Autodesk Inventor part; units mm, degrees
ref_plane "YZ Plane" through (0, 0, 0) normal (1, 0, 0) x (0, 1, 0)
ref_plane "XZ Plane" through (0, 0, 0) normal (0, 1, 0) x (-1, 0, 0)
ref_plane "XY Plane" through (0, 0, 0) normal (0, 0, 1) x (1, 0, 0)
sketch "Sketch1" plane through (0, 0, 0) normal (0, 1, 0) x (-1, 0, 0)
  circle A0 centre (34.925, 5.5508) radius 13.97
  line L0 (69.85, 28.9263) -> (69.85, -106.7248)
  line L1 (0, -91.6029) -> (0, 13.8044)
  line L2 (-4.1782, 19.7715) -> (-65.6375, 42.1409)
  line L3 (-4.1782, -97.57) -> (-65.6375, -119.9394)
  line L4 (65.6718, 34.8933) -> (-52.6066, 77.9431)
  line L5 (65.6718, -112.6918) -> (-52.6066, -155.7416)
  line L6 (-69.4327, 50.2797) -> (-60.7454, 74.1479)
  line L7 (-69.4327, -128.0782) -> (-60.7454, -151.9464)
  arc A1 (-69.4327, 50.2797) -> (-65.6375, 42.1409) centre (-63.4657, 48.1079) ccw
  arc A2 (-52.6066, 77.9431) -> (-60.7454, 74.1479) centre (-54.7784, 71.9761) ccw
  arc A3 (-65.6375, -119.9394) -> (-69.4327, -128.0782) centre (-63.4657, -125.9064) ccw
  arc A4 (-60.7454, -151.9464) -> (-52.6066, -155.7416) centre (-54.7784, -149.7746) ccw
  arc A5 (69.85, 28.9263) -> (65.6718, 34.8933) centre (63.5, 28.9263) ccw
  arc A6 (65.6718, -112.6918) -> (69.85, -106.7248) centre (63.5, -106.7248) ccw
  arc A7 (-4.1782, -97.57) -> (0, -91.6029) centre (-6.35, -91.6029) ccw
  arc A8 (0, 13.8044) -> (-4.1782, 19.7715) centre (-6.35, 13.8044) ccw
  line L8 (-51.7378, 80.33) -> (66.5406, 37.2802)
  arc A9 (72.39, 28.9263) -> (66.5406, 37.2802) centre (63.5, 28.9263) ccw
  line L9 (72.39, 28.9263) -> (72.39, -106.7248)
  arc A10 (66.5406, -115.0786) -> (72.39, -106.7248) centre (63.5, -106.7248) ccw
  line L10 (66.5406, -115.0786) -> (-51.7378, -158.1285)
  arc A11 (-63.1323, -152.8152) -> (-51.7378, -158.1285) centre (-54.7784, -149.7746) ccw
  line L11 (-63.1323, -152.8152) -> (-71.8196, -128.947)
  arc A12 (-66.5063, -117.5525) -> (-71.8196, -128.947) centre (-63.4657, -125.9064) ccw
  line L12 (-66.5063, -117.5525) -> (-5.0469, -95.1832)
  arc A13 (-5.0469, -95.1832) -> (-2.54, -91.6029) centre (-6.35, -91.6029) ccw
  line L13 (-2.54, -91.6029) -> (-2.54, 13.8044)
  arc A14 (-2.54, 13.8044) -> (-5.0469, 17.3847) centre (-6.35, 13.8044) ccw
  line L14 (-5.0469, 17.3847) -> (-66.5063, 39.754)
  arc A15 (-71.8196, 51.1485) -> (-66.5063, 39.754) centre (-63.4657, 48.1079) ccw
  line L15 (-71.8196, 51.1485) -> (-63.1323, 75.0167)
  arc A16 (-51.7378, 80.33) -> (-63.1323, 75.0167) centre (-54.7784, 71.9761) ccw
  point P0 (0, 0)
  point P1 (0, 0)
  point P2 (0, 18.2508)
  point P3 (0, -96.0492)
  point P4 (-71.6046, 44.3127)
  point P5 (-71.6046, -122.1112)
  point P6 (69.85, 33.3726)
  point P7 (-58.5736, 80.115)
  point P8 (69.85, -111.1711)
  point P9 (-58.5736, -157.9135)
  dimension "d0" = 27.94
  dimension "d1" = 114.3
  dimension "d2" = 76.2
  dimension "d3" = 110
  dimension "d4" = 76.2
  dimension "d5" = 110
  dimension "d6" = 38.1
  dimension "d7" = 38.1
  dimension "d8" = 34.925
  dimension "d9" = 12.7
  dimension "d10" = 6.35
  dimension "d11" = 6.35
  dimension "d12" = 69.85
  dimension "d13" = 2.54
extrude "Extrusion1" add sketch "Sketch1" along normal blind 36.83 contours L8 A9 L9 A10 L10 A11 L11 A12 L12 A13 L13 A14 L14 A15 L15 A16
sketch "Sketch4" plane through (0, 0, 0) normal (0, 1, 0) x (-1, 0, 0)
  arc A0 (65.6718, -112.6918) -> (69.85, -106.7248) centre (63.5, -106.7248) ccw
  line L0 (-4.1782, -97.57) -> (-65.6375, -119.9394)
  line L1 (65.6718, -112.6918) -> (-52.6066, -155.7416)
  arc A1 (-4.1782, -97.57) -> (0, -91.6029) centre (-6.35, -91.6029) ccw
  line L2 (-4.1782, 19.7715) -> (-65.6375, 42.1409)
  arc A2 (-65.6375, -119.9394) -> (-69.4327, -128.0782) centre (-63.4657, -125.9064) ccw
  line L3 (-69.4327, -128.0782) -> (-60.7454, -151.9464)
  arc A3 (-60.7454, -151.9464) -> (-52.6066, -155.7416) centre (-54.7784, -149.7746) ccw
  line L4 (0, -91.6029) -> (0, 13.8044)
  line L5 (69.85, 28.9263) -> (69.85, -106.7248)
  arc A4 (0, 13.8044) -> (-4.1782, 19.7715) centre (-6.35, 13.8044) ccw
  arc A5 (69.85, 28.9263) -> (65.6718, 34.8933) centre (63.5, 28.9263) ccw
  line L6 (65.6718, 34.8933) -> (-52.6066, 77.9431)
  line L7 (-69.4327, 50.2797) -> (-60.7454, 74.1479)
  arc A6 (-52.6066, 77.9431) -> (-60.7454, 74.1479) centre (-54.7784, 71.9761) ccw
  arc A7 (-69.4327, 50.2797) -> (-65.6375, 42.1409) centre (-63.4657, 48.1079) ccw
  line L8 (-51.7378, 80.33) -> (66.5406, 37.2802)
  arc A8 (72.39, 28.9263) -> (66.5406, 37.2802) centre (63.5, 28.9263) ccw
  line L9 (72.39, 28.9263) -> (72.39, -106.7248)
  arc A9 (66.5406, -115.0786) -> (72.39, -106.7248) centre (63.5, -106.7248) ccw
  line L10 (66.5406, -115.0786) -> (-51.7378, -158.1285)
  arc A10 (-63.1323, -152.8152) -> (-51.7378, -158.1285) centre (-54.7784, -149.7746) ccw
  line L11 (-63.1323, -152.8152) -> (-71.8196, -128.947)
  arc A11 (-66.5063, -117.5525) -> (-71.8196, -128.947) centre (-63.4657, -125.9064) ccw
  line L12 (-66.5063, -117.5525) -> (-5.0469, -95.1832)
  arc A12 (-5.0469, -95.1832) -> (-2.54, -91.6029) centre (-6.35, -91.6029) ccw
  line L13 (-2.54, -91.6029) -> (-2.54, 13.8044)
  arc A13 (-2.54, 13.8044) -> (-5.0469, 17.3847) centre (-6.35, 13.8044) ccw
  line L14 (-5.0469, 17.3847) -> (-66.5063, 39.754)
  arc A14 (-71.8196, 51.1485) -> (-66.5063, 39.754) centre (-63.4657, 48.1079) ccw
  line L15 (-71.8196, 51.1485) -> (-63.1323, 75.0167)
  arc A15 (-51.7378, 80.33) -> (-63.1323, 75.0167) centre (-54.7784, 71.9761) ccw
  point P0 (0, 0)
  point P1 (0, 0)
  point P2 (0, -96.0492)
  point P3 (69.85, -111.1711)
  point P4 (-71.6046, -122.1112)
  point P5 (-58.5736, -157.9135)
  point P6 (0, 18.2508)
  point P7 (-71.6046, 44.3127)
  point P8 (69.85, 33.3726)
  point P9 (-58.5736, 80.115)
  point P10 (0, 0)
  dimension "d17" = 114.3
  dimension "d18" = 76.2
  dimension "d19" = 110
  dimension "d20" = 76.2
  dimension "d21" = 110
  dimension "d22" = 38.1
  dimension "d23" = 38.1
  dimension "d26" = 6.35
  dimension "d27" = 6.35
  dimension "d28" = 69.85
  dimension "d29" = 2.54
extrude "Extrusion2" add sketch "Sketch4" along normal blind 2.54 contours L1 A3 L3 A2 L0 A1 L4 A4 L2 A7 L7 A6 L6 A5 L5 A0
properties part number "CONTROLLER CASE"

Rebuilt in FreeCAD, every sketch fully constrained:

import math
import FreeCAD as App
import Part
import Sketcher
Q = App.Units.Quantity

doc = App.newDocument("Part")
body = doc.addObject("PartDesign::Body", "Body")

# Sketch on XZ plane
sketch1 = body.newObject("Sketcher::SketchObject", "Sketch")
sketch1.AttachmentSupport = (doc.getObject("XZ_Plane"), [""])
sketch1.MapMode = "FlatFace"
sketch1.addGeometry([
    Part.LineSegment(App.Vector(-66.5406, 37.2802, 0), App.Vector(51.7378, 80.33, 0)),  # 0
    Part.ArcOfCircle(Part.Circle(App.Vector(54.7784, 71.9761, 0), App.Vector(0, 0, 1), 8.890045), math.radians(20.000176), math.radians(110.000176)),  # 1
    Part.LineSegment(App.Vector(63.1323, 75.0167, 0), App.Vector(71.8196, 51.1485, 0)),  # 2
    Part.ArcOfCircle(Part.Circle(App.Vector(63.4657, 48.1079, 0), App.Vector(0, 0, 1), 8.890045), math.radians(-69.999824), math.radians(20.000176)),  # 3
    Part.LineSegment(App.Vector(66.5063, 39.754, 0), App.Vector(5.0469, 17.3847, 0)),  # 4
    Part.ArcOfCircle(Part.Circle(App.Vector(6.35, 13.8044, 0), App.Vector(0, 0, 1), 3.81), math.radians(109.99968), math.radians(180)),  # 5
    Part.LineSegment(App.Vector(2.54, 13.8044, 0), App.Vector(2.54, -91.6029, 0)),  # 6
    Part.ArcOfCircle(Part.Circle(App.Vector(6.35, -91.6029, 0), App.Vector(0, 0, 1), 3.810068), math.radians(180), math.radians(250.00032)),  # 7
    Part.LineSegment(App.Vector(5.0469, -95.1832, 0), App.Vector(66.5063, -117.5525, 0)),  # 8
    Part.ArcOfCircle(Part.Circle(App.Vector(63.4657, -125.9064, 0), App.Vector(0, 0, 1), 8.890045), math.radians(-20.000176), math.radians(69.999824)),  # 9
    Part.LineSegment(App.Vector(71.8196, -128.947, 0), App.Vector(63.1323, -152.8152, 0)),  # 10
    Part.ArcOfCircle(Part.Circle(App.Vector(54.7784, -149.7746, 0), App.Vector(0, 0, 1), 8.890045), math.radians(-110.000176), math.radians(-20.000176)),  # 11
    Part.LineSegment(App.Vector(51.7378, -158.1285, 0), App.Vector(-66.5406, -115.0786, 0)),  # 12
    Part.ArcOfCircle(Part.Circle(App.Vector(-63.5, -106.7248, 0), App.Vector(0, 0, 1), 8.889951), math.radians(180), math.radians(249.999604)),  # 13
    Part.LineSegment(App.Vector(-72.39, -106.7248, 0), App.Vector(-72.39, 28.9263, 0)),  # 14
    Part.ArcOfCircle(Part.Circle(App.Vector(-63.5, 28.9263, 0), App.Vector(0, 0, 1), 8.89), math.radians(110.000176), math.radians(180)),  # 15
    Part.ArcOfCircle(Part.Circle(App.Vector(-63.5, 28.9263, 0), App.Vector(0, 0, 1), 6.35), math.radians(109.999912), math.radians(180)),  # 16
    Part.LineSegment(App.Vector(-69.85, 28.9263, 0), App.Vector(-69.85, -106.7248, 0)),  # 17
    Part.ArcOfCircle(Part.Circle(App.Vector(-63.5, -106.7248, 0), App.Vector(0, 0, 1), 6.349945), math.radians(180), math.radians(250.000088)),  # 18
    Part.LineSegment(App.Vector(-65.6718, -112.6918, 0), App.Vector(52.6066, -155.7416, 0)),  # 19
    Part.ArcOfCircle(Part.Circle(App.Vector(54.7784, -149.7746, 0), App.Vector(0, 0, 1), 6.349945), math.radians(-109.999912), math.radians(-19.999912)),  # 20
    Part.LineSegment(App.Vector(60.7454, -151.9464, 0), App.Vector(69.4327, -128.0782, 0)),  # 21
    Part.ArcOfCircle(Part.Circle(App.Vector(63.4657, -125.9064, 0), App.Vector(0, 0, 1), 6.349945), math.radians(-19.999912), math.radians(70.000088)),  # 22
    Part.LineSegment(App.Vector(65.6375, -119.9394, 0), App.Vector(4.1782, -97.57, 0)),  # 23
    Part.ArcOfCircle(Part.Circle(App.Vector(6.35, -91.6029, 0), App.Vector(0, 0, 1), 6.350039), math.radians(180), math.radians(250.000397)),  # 24
    Part.LineSegment(App.Vector(0, -91.6029, 0), App.Vector(0, 13.8044, 0)),  # 25
    Part.ArcOfCircle(Part.Circle(App.Vector(6.35, 13.8044, 0), App.Vector(0, 0, 1), 6.35), math.radians(109.999603), math.radians(180)),  # 26
    Part.LineSegment(App.Vector(4.1782, 19.7715, 0), App.Vector(65.6375, 42.1409, 0)),  # 27
    Part.ArcOfCircle(Part.Circle(App.Vector(63.4657, 48.1079, 0), App.Vector(0, 0, 1), 6.349945), math.radians(-70.000088), math.radians(19.999912)),  # 28
    Part.LineSegment(App.Vector(69.4327, 50.2797, 0), App.Vector(60.7454, 74.1479, 0)),  # 29
    Part.ArcOfCircle(Part.Circle(App.Vector(54.7784, 71.9761, 0), App.Vector(0, 0, 1), 6.349945), math.radians(19.999912), math.radians(109.999912)),  # 30
    Part.LineSegment(App.Vector(52.6066, 77.9431, 0), App.Vector(-65.6718, 34.8933, 0)),  # 31
], False)
sketch1.addConstraint([
    Sketcher.Constraint("Tangent", 0, 2, 1, 2),
    Sketcher.Constraint("Tangent", 1, 1, 2, 1),
    Sketcher.Constraint("Tangent", 2, 2, 3, 2),
    Sketcher.Constraint("Tangent", 3, 1, 4, 1),
    Sketcher.Constraint("Tangent", 4, 2, 5, 1),
    Sketcher.Constraint("Tangent", 5, 2, 6, 1),
    Sketcher.Constraint("Tangent", 6, 2, 7, 1),
    Sketcher.Constraint("Tangent", 7, 2, 8, 1),
    Sketcher.Constraint("Tangent", 8, 2, 9, 2),
    Sketcher.Constraint("Tangent", 9, 1, 10, 1),
    Sketcher.Constraint("Tangent", 10, 2, 11, 2),
    Sketcher.Constraint("Tangent", 11, 1, 12, 1),
    Sketcher.Constraint("Tangent", 12, 2, 13, 2),
    Sketcher.Constraint("Tangent", 13, 1, 14, 1),
    Sketcher.Constraint("Tangent", 14, 2, 15, 2),
    Sketcher.Constraint("Tangent", 15, 1, 0, 1),
    Sketcher.Constraint("Tangent", 16, 2, 17, 1),
    Sketcher.Constraint("Tangent", 17, 2, 18, 1),
    Sketcher.Constraint("Tangent", 18, 2, 19, 1),
    Sketcher.Constraint("Tangent", 19, 2, 20, 1),
    Sketcher.Constraint("Tangent", 20, 2, 21, 1),
    Sketcher.Constraint("Tangent", 21, 2, 22, 1),
    Sketcher.Constraint("Tangent", 22, 2, 23, 1),
    Sketcher.Constraint("Tangent", 23, 2, 24, 2),
    Sketcher.Constraint("Tangent", 24, 1, 25, 1),
    Sketcher.Constraint("Tangent", 25, 2, 26, 2),
    Sketcher.Constraint("Tangent", 26, 1, 27, 1),
    Sketcher.Constraint("Tangent", 27, 2, 28, 1),
    Sketcher.Constraint("Tangent", 28, 2, 29, 1),
    Sketcher.Constraint("Tangent", 29, 2, 30, 1),
    Sketcher.Constraint("Tangent", 30, 2, 31, 1),
    Sketcher.Constraint("Tangent", 31, 2, 16, 1),
    Sketcher.Constraint("Vertical", 6),
    Sketcher.Constraint("Vertical", 14),
    Sketcher.Constraint("Vertical", 17),
    Sketcher.Constraint("Vertical", 25),
    Sketcher.Constraint("Coincident", 16, 3, 15, 3),
    Sketcher.Constraint("Coincident", 18, 3, 13, 3),
    Sketcher.Constraint("Coincident", 20, 3, 11, 3),
    Sketcher.Constraint("Coincident", 22, 3, 9, 3),
    Sketcher.Constraint("Coincident", 24, 3, 7, 3),
    Sketcher.Constraint("Coincident", 26, 3, 5, 3),
    Sketcher.Constraint("Coincident", 28, 3, 3, 3),
    Sketcher.Constraint("Coincident", 30, 3, 1, 3),
    Sketcher.Constraint("Equal", 1, 3),
    Sketcher.Constraint("Equal", 5, 7),
    Sketcher.Constraint("Equal", 3, 9),
    Sketcher.Constraint("Equal", 9, 11),
    Sketcher.Constraint("Equal", 11, 13),
    Sketcher.Constraint("Equal", 13, 15),
    Sketcher.Constraint("Equal", 18, 20),
    Sketcher.Constraint("Equal", 20, 22),
    Sketcher.Constraint("Equal", 22, 24),
    Sketcher.Constraint("Equal", 26, 28),
    Sketcher.Constraint("Equal", 28, 30),
    Sketcher.Constraint("PointOnObject", 24, 1, -2),
    Sketcher.Constraint("Perpendicular", 0, 2),
    Sketcher.Constraint("Perpendicular", 2, 4),
    Sketcher.Constraint("Perpendicular", 8, 10),
    Sketcher.Constraint("Perpendicular", 10, 12),
    Sketcher.Constraint("Perpendicular", 21, 23),
    Sketcher.Constraint("Vertical", 3, 3, 9, 3),
    Sketcher.Constraint("Vertical", 1, 3, 11, 3),
    Sketcher.Constraint("Vertical", 4, 2, 7, 2),
    Sketcher.Constraint("Radius", 16, Q("0.25 in")),
    Sketcher.Constraint("Angle", 10, Q("-110 deg")),
    Sketcher.Constraint("DistanceX", -1, 1, 5, 2, Q("0.1 in")),
    Sketcher.Constraint("DistanceX", 16, 2, -1, 1, Q("2.75 in")),
    Sketcher.Constraint("Distance", 2, Q("1 in")),
    Sketcher.Constraint("DistanceY", 6, 2, 6, 1, Q("4.1499 in")),
    Sketcher.Constraint("DistanceY", -1, 1, 3, 3, Q("1.894 in")),
    Sketcher.Constraint("DistanceY", -1, 1, 26, 1, Q("0.7784 in")),
])
pad1 = body.newObject("PartDesign::Pad", "Pad")
pad1.Profile = sketch1
pad1.Length = Q("1.45 in")
pad1.Reversed = True

# Sketch on XZ plane
sketch2 = body.newObject("Sketcher::SketchObject", "Sketch001")
sketch2.AttachmentSupport = (doc.getObject("XZ_Plane"), [""])
sketch2.MapMode = "FlatFace"
sketch2.addGeometry([
    Part.LineSegment(App.Vector(52.6066, -155.7416, 0), App.Vector(-65.6718, -112.6918, 0)),  # 0
    Part.ArcOfCircle(Part.Circle(App.Vector(-63.5, -106.7248, 0), App.Vector(0, 0, 1), 6.349945), math.radians(180), math.radians(250.000088)),  # 1
    Part.LineSegment(App.Vector(-69.85, -106.7248, 0), App.Vector(-69.85, 28.9263, 0)),  # 2
    Part.ArcOfCircle(Part.Circle(App.Vector(-63.5, 28.9263, 0), App.Vector(0, 0, 1), 6.35), math.radians(109.999912), math.radians(180)),  # 3
    Part.LineSegment(App.Vector(-65.6718, 34.8933, 0), App.Vector(52.6066, 77.9431, 0)),  # 4
    Part.ArcOfCircle(Part.Circle(App.Vector(54.7784, 71.9761, 0), App.Vector(0, 0, 1), 6.349945), math.radians(19.999912), math.radians(109.999912)),  # 5
    Part.LineSegment(App.Vector(60.7454, 74.1479, 0), App.Vector(69.4327, 50.2797, 0)),  # 6
    Part.ArcOfCircle(Part.Circle(App.Vector(63.4657, 48.1079, 0), App.Vector(0, 0, 1), 6.349945), math.radians(-70.000088), math.radians(19.999912)),  # 7
    Part.LineSegment(App.Vector(65.6375, 42.1409, 0), App.Vector(4.1782, 19.7715, 0)),  # 8
    Part.ArcOfCircle(Part.Circle(App.Vector(6.35, 13.8044, 0), App.Vector(0, 0, 1), 6.35), math.radians(109.999603), math.radians(180)),  # 9
    Part.LineSegment(App.Vector(0, 13.8044, 0), App.Vector(0, -91.6029, 0)),  # 10
    Part.ArcOfCircle(Part.Circle(App.Vector(6.35, -91.6029, 0), App.Vector(0, 0, 1), 6.350039), math.radians(180), math.radians(250.000397)),  # 11
    Part.LineSegment(App.Vector(4.1782, -97.57, 0), App.Vector(65.6375, -119.9394, 0)),  # 12
    Part.ArcOfCircle(Part.Circle(App.Vector(63.4657, -125.9064, 0), App.Vector(0, 0, 1), 6.349945), math.radians(-19.999912), math.radians(70.000088)),  # 13
    Part.LineSegment(App.Vector(69.4327, -128.0782, 0), App.Vector(60.7454, -151.9464, 0)),  # 14
    Part.ArcOfCircle(Part.Circle(App.Vector(54.7784, -149.7746, 0), App.Vector(0, 0, 1), 6.349945), math.radians(-109.999912), math.radians(-19.999912)),  # 15
], False)
sketch2.addConstraint([
    Sketcher.Constraint("Tangent", 0, 2, 1, 2),
    Sketcher.Constraint("Tangent", 1, 1, 2, 1),
    Sketcher.Constraint("Tangent", 2, 2, 3, 2),
    Sketcher.Constraint("Tangent", 3, 1, 4, 1),
    Sketcher.Constraint("Tangent", 4, 2, 5, 2),
    Sketcher.Constraint("Tangent", 5, 1, 6, 1),
    Sketcher.Constraint("Tangent", 6, 2, 7, 2),
    Sketcher.Constraint("Tangent", 7, 1, 8, 1),
    Sketcher.Constraint("Tangent", 8, 2, 9, 1),
    Sketcher.Constraint("Tangent", 9, 2, 10, 1),
    Sketcher.Constraint("Tangent", 10, 2, 11, 1),
    Sketcher.Constraint("Tangent", 11, 2, 12, 1),
    Sketcher.Constraint("Tangent", 12, 2, 13, 2),
    Sketcher.Constraint("Tangent", 13, 1, 14, 1),
    Sketcher.Constraint("Tangent", 14, 2, 15, 2),
    Sketcher.Constraint("Tangent", 15, 1, 0, 1),
    Sketcher.Constraint("Vertical", 2),
    Sketcher.Constraint("Vertical", 10),
    Sketcher.Constraint("Equal", 1, 3),
    Sketcher.Constraint("Equal", 3, 5),
    Sketcher.Constraint("Equal", 5, 7),
    Sketcher.Constraint("Equal", 7, 9),
    Sketcher.Constraint("Equal", 9, 11),
    Sketcher.Constraint("Equal", 11, 13),
    Sketcher.Constraint("Equal", 13, 15),
    Sketcher.Constraint("PointOnObject", 9, 2, -2),
    Sketcher.Constraint("Perpendicular", 4, 6),
    Sketcher.Constraint("Perpendicular", 6, 8),
    Sketcher.Constraint("Parallel", 0, 12),
    Sketcher.Constraint("Perpendicular", 12, 14),
    Sketcher.Constraint("Vertical", 7, 3, 13, 3),
    Sketcher.Constraint("Vertical", 5, 3, 15, 3),
    Sketcher.Constraint("Vertical", 0, 2, 3, 1),
    Sketcher.Constraint("Radius", 1, Q("0.25 in")),
    Sketcher.Constraint("Angle", 14, Q("-110 deg")),
    Sketcher.Constraint("DistanceX", 1, 1, 11, 3, Q("3 in")),
    Sketcher.Constraint("Distance", 6, Q("1 in")),
    Sketcher.Constraint("DistanceY", 2, 1, 2, 2, Q("5.3406 in")),
    Sketcher.Constraint("DistanceY", -1, 1, 7, 3, Q("1.894 in")),
    Sketcher.Constraint("DistanceY", -1, 1, 8, 2, Q("0.7784 in")),
])
pad2 = body.newObject("PartDesign::Pad", "Pad001")
pad2.Profile = sketch2
pad2.Length = Q("0.1 in")
pad2.Reversed = True

doc.recompute()
